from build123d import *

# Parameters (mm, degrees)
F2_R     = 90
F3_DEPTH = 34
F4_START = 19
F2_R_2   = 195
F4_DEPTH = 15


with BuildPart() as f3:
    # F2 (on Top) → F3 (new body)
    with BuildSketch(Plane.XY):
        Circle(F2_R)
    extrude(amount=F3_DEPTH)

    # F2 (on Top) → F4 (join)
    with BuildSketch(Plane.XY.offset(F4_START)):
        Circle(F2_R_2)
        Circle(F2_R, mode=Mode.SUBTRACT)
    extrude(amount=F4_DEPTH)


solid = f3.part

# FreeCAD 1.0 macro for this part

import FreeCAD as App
import Part
import Sketcher

V = App.Vector

doc = App.newDocument("Part")
params = doc.addObject("Spreadsheet::Sheet", "Params")
for row, (alias, value) in enumerate([
    ("sketch1_diameter", "180 mm"),
    ("pad1_length", "34 mm"),
    ("sketch2_diameter", "390 mm"),
    ("sketch2_diameter2", "180 mm"),
    ("pad2_length", "15 mm"),
], start=1):
    params.set(f"A{row}", alias)
    params.set(f"B{row}", "=" + value)
    params.setAlias(f"B{row}", alias)

body = doc.addObject("PartDesign::Body", "Body")

# Sketch on XY plane
sketch1 = body.newObject("Sketcher::SketchObject", "Sketch")
sketch1.AttachmentSupport = (doc.getObject("XY_Plane"), [""])
sketch1.MapMode = "FlatFace"
sketch1.addGeometry(Part.Circle(V(0, 0, 0), V(0, 0, 1), 90), False)
sketch1.addConstraint([
    Sketcher.Constraint("Coincident", 0, 3, -1, 1),
    Sketcher.Constraint("Diameter", 0, 180.0),
])
sketch1.setExpression("Constraints[1]", "Params.sketch1_diameter")
pad1 = body.newObject("PartDesign::Pad", "Pad")
pad1.Profile = sketch1
pad1.setExpression("Length", "Params.pad1_length")

# Sketch on XY plane
sketch2 = body.newObject("Sketcher::SketchObject", "Sketch001")
sketch2.AttachmentSupport = (doc.getObject("XY_Plane"), [""])
sketch2.MapMode = "FlatFace"
sketch2.AttachmentOffset = App.Placement(V(0, 0, 19), App.Rotation())
sketch2.addGeometry([
    Part.Circle(V(0, 0, 0), V(0, 0, 1), 195),
    Part.Circle(V(0, 0, 0), V(0, 0, 1), 90),
], False)
sketch2.addConstraint([
    Sketcher.Constraint("Coincident", 0, 3, -1, 1),
    Sketcher.Constraint("Coincident", 1, 3, -1, 1),
    Sketcher.Constraint("Diameter", 0, 390.0),
    Sketcher.Constraint("Diameter", 1, 180.0),
])
sketch2.setExpression("Constraints[2]", "Params.sketch2_diameter")
sketch2.setExpression("Constraints[3]", "Params.sketch2_diameter2")
pad2 = body.newObject("PartDesign::Pad", "Pad001")
pad2.Profile = sketch2
pad2.setExpression("Length", "Params.pad2_length")

doc.recompute()
